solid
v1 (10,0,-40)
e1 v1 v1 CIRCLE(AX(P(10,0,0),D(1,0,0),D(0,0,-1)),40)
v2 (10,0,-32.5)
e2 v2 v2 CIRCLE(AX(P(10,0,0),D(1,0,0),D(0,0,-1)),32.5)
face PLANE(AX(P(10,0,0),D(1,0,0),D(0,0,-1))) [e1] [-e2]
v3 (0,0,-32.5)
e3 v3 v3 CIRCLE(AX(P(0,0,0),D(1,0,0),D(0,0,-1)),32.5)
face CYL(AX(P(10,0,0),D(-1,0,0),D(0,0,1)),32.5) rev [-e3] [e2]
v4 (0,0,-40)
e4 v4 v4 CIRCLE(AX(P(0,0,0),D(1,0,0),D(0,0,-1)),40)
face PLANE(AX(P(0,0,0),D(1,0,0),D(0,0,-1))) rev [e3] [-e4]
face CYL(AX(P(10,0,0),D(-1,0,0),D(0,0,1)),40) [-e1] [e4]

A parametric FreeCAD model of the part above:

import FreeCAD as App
import Part
import Sketcher
from FreeCAD import Vector
Q = App.Units.Quantity

doc = App.newDocument("Part")
body = doc.addObject("PartDesign::Body", "Body")

sketch1 = body.newObject("Sketcher::SketchObject", "Sketch")
sketch1.AttachmentSupport = (doc.getObject("YZ_Plane"), [""])
sketch1.MapMode = "FlatFace"
sketch1.addGeometry(Part.Circle(Vector(0, 0, 0), Vector(0, 0, 1), 40), False)
sketch1.addGeometry(Part.Circle(Vector(0, 0, 0), Vector(0, 0, 1), 32.5), False)
sketch1.addConstraint(Sketcher.Constraint("Coincident", 0, 3, -1, 1))
sketch1.addConstraint(Sketcher.Constraint("Coincident", 1, 3, -1, 1))
sketch1.addConstraint(Sketcher.Constraint("Diameter", 0, Q("80 mm")))
sketch1.addConstraint(Sketcher.Constraint("Diameter", 1, Q("65 mm")))
pad1 = body.newObject("PartDesign::Pad", "Pad")
pad1.Profile = sketch1
pad1.Length = 10

doc.recompute()
